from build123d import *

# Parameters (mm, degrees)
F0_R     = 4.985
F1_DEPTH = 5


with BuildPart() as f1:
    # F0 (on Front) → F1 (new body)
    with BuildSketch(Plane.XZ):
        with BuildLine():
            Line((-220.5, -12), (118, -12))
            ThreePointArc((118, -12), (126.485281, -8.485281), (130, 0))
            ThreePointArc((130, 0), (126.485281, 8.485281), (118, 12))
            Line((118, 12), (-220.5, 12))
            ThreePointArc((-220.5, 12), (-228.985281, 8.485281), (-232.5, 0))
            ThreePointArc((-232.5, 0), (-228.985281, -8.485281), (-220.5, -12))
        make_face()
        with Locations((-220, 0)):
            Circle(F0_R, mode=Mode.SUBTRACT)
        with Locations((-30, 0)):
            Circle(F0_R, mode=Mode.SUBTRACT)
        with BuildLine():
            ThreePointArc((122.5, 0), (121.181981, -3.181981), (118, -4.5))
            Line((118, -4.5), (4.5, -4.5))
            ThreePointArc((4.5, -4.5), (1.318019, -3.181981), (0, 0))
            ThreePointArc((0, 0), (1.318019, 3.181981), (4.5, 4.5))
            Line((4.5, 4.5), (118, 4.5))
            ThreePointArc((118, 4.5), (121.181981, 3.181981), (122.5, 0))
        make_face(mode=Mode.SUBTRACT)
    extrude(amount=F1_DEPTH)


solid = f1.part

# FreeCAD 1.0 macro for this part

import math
import FreeCAD as App
import Part
import Sketcher
from FreeCAD import Vector

doc = App.newDocument("Part")
body = doc.addObject("PartDesign::Body", "Body")

# Sketch on XZ plane
sketch1 = doc.addObject("Sketcher::SketchObject", "Sketch")
body.addObject(sketch1)
sketch1.AttachmentSupport = (doc.XZ_Plane, [""])
sketch1.MapMode = "FlatFace"
sketch1.addGeometry([
    Part.LineSegment(Vector(-220.5, -12, 0), Vector(118, -12, 0)),  # 0
    Part.ArcOfCircle(Part.Circle(Vector(118, 0, 0), Vector(0, 0, 1), 12), math.radians(-90), math.radians(0)),  # 1
    Part.ArcOfCircle(Part.Circle(Vector(118, 0, 0), Vector(0, 0, 1), 12), math.radians(0), math.radians(90)),  # 2
    Part.LineSegment(Vector(118, 12, 0), Vector(-220.5, 12, 0)),  # 3
    Part.ArcOfCircle(Part.Circle(Vector(-220.5, 0, 0), Vector(0, 0, 1), 12), math.radians(90), math.radians(180)),  # 4
    Part.ArcOfCircle(Part.Circle(Vector(-220.5, 0, 0), Vector(0, 0, 1), 12), math.radians(-180), math.radians(-90)),  # 5
    Part.Circle(Vector(-220, 0, 0), Vector(0, 0, 1), 5),  # 6
    Part.Circle(Vector(-30, 0, 0), Vector(0, 0, 1), 5),  # 7
    Part.ArcOfCircle(Part.Circle(Vector(118, 0, 0), Vector(0, 0, 1), 4.5), math.radians(0), math.radians(90)),  # 8
    Part.ArcOfCircle(Part.Circle(Vector(118, 0, 0), Vector(0, 0, 1), 4.5), math.radians(-90), math.radians(0)),  # 9
    Part.LineSegment(Vector(118, -4.5, 0), Vector(4.5, -4.5, 0)),  # 10
    Part.ArcOfCircle(Part.Circle(Vector(4.5, 0, 0), Vector(0, 0, 1), 4.5), math.radians(180), math.radians(270)),  # 11
    Part.ArcOfCircle(Part.Circle(Vector(4.5, 0, 0), Vector(0, 0, 1), 4.5), math.radians(90), math.radians(180)),  # 12
    Part.LineSegment(Vector(4.5, 4.5, 0), Vector(118, 4.5, 0)),  # 13
], False)
sketch1.addConstraint([
    Sketcher.Constraint("Tangent", 0, 2, 1, 1),
    Sketcher.Constraint("Tangent", 1, 2, 2, 1),
    Sketcher.Constraint("Tangent", 2, 2, 3, 1),
    Sketcher.Constraint("Tangent", 3, 2, 4, 1),
    Sketcher.Constraint("Tangent", 4, 2, 5, 1),
    Sketcher.Constraint("Tangent", 5, 2, 0, 1),
    Sketcher.Constraint("Tangent", 8, 1, 9, 2),
    Sketcher.Constraint("Tangent", 9, 1, 10, 1),
    Sketcher.Constraint("Tangent", 10, 2, 11, 2),
    Sketcher.Constraint("Tangent", 11, 1, 12, 2),
    Sketcher.Constraint("Tangent", 12, 1, 13, 1),
    Sketcher.Constraint("Tangent", 13, 2, 8, 2),
    Sketcher.Constraint("Horizontal", 0),
    Sketcher.Constraint("Horizontal", 3),
    Sketcher.Constraint("Horizontal", 10),
    Sketcher.Constraint("Horizontal", 13),
    Sketcher.Constraint("Coincident", 11, 1, -1, 1),
    Sketcher.Constraint("Coincident", 8, 3, 1, 3),
    Sketcher.Constraint("Equal", 1, 2),
    Sketcher.Constraint("Equal", 2, 4),
    Sketcher.Constraint("Equal", 6, 7),
    Sketcher.Constraint("Equal", 8, 9),
    Sketcher.Constraint("Equal", 9, 11),
    Sketcher.Constraint("PointOnObject", 1, 3, -1),
    Sketcher.Constraint("PointOnObject", 6, 3, -1),
    Sketcher.Constraint("PointOnObject", 7, 3, -1),
    Sketcher.Constraint("PointOnObject", 1, 2, -1),
    Sketcher.Constraint("PointOnObject", 4, 2, -1),
    Sketcher.Constraint("PointOnObject", 8, 1, -1),
    Sketcher.Constraint("Radius", 1, 12.000001),
    Sketcher.Constraint("Radius", 8, 4.499998),
    Sketcher.Constraint("Diameter", 6, 9.97),
    Sketcher.Constraint("DistanceX", 0, 1, 0, 2, 338.5),
    Sketcher.Constraint("DistanceX", 10, 2, 10, 1, 113.5),
    Sketcher.Constraint("DistanceX", 6, 3, -1, 1, 220.0),
    Sketcher.Constraint("DistanceX", 7, 3, -1, 1, 30.0),
])
pad1 = doc.addObject("PartDesign::Pad", "Pad")
body.addObject(pad1)
pad1.Profile = sketch1
pad1.Length = 5

doc.recompute()
